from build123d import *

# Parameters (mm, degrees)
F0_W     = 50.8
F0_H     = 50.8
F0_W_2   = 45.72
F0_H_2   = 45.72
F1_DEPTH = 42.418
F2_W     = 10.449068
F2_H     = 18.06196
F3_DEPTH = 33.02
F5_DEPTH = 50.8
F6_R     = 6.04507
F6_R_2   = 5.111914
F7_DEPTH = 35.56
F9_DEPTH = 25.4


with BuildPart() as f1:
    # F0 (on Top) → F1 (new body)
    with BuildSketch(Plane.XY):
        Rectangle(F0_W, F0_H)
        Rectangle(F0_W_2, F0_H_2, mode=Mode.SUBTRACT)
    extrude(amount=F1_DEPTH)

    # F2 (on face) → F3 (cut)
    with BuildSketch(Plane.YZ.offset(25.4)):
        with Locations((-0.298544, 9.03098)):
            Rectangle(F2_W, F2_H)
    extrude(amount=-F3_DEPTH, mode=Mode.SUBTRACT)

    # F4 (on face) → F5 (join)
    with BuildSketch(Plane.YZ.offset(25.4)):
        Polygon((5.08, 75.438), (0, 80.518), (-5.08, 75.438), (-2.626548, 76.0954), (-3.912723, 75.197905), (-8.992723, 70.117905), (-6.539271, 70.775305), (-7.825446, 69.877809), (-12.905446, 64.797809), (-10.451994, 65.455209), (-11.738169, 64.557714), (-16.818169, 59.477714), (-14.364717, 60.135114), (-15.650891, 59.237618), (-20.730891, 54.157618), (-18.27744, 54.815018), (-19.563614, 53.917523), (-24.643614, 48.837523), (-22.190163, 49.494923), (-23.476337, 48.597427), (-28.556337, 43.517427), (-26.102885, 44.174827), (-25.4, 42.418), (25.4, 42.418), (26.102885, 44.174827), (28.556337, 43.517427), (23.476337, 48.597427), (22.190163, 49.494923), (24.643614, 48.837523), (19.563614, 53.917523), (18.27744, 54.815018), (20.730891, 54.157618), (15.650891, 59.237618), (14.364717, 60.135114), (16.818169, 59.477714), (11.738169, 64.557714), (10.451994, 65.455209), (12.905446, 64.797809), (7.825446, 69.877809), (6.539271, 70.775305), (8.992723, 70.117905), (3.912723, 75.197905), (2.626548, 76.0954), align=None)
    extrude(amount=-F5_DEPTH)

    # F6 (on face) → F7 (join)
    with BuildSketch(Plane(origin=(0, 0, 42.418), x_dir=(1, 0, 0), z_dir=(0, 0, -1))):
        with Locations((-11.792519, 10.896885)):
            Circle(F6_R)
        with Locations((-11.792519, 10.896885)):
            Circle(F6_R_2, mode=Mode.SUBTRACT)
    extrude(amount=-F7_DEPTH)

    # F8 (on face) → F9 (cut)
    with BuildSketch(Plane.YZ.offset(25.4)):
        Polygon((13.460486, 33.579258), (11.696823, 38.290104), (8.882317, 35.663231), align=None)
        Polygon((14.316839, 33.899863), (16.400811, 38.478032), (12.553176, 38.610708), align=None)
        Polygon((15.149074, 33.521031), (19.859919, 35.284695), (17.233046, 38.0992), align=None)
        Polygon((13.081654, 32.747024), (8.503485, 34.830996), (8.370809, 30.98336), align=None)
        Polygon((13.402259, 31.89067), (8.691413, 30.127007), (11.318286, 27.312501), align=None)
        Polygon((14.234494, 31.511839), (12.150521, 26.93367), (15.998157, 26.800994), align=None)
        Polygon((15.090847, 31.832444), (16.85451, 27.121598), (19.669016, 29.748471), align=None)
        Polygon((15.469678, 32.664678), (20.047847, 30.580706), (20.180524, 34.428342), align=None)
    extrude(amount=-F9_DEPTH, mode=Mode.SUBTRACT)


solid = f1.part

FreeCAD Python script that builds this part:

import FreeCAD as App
import Part
import Sketcher

V = App.Vector
Q = App.Units.Quantity

doc = App.newDocument("Part")
body = doc.addObject("PartDesign::Body", "Body")

# Sketch on XY plane
sketch1 = body.newObject("Sketcher::SketchObject", "Sketch")
sketch1.AttachmentSupport = (doc.getObject("XY_Plane"), [""])
sketch1.MapMode = "FlatFace"
sketch1.addGeometry(Part.LineSegment(V(-25, 25, 0), V(-25, -25, 0)), False)
sketch1.addGeometry(Part.LineSegment(V(-25, -25, 0), V(25, -25, 0)), False)
sketch1.addGeometry(Part.LineSegment(V(25, -25, 0), V(25, 25, 0)), False)
sketch1.addGeometry(Part.LineSegment(V(25, 25, 0), V(-25, 25, 0)), False)
sketch1.addGeometry(Part.LineSegment(V(23, -23, 0), V(-23, -23, 0)), False)
sketch1.addGeometry(Part.LineSegment(V(-23, -23, 0), V(-23, 23, 0)), False)
sketch1.addGeometry(Part.LineSegment(V(-23, 23, 0), V(23, 23, 0)), False)
sketch1.addGeometry(Part.LineSegment(V(23, 23, 0), V(23, -23, 0)), False)
sketch1.addConstraint(Sketcher.Constraint("Coincident", 0, 2, 1, 1))
sketch1.addConstraint(Sketcher.Constraint("Coincident", 1, 2, 2, 1))
sketch1.addConstraint(Sketcher.Constraint("Coincident", 2, 2, 3, 1))
sketch1.addConstraint(Sketcher.Constraint("Coincident", 3, 2, 0, 1))
sketch1.addConstraint(Sketcher.Constraint("Coincident", 4, 2, 5, 1))
sketch1.addConstraint(Sketcher.Constraint("Coincident", 5, 2, 6, 1))
sketch1.addConstraint(Sketcher.Constraint("Coincident", 6, 2, 7, 1))
sketch1.addConstraint(Sketcher.Constraint("Coincident", 7, 2, 4, 1))
sketch1.addConstraint(Sketcher.Constraint("Vertical", 0))
sketch1.addConstraint(Sketcher.Constraint("Horizontal", 1))
sketch1.addConstraint(Sketcher.Constraint("Vertical", 2))
sketch1.addConstraint(Sketcher.Constraint("Horizontal", 3))
sketch1.addConstraint(Sketcher.Constraint("Horizontal", 4))
sketch1.addConstraint(Sketcher.Constraint("Vertical", 5))
sketch1.addConstraint(Sketcher.Constraint("Horizontal", 6))
sketch1.addConstraint(Sketcher.Constraint("Vertical", 7))
sketch1.addConstraint(Sketcher.Constraint("Symmetric", 0, 2, 2, 2, -1, 1))
sketch1.addConstraint(Sketcher.Constraint("Symmetric", 4, 2, 6, 2, -1, 1))
sketch1.addConstraint(Sketcher.Constraint("Equal", 3, 0))
sketch1.addConstraint(Sketcher.Constraint("Equal", 6, 5))
sketch1.addConstraint(Sketcher.Constraint("DistanceX", 1, 1, 1, 2, Q("2 in")))
sketch1.addConstraint(Sketcher.Constraint("DistanceX", 4, 2, 4, 1, Q("1.8 in")))
pad1 = body.newObject("PartDesign::Pad", "Pad")
pad1.Profile = sketch1
pad1.Length = Q("1.67 in")

# Sketch on YZ plane
sketch2 = body.newObject("Sketcher::SketchObject", "Sketch001")
sketch2.AttachmentSupport = (doc.getObject("YZ_Plane"), [""])
sketch2.MapMode = "FlatFace"
sketch2.AttachmentOffset = App.Placement(V(0, 0, 1 * 25.4), App.Rotation())
sketch2.addGeometry(Part.LineSegment(V(-6, 18, 0), V(-6, 0, 0)), False)
sketch2.addGeometry(Part.LineSegment(V(-6, 0, 0), V(5, 0, 0)), False)
sketch2.addGeometry(Part.LineSegment(V(5, 0, 0), V(5, 18, 0)), False)
sketch2.addGeometry(Part.LineSegment(V(5, 18, 0), V(-6, 18, 0)), False)
sketch2.addConstraint(Sketcher.Constraint("Coincident", 0, 2, 1, 1))
sketch2.addConstraint(Sketcher.Constraint("Coincident", 1, 2, 2, 1))
sketch2.addConstraint(Sketcher.Constraint("Coincident", 2, 2, 3, 1))
sketch2.addConstraint(Sketcher.Constraint("Coincident", 3, 2, 0, 1))
sketch2.addConstraint(Sketcher.Constraint("Vertical", 0))
sketch2.addConstraint(Sketcher.Constraint("Horizontal", 1))
sketch2.addConstraint(Sketcher.Constraint("Vertical", 2))
sketch2.addConstraint(Sketcher.Constraint("Horizontal", 3))
sketch2.addConstraint(Sketcher.Constraint("PointOnObject", 0, 2, -1))
sketch2.addConstraint(Sketcher.Constraint("DistanceY", 0, 2, 0, 1, 18.06196))
sketch2.addConstraint(Sketcher.Constraint("DistanceX", 1, 1, 1, 2, 10.449068))
sketch2.addConstraint(Sketcher.Constraint("DistanceX", -1, 1, 1, 2, 4.92599))
pocket1 = body.newObject("PartDesign::Pocket", "Pocket")
pocket1.Profile = sketch2
pocket1.Length = Q("1.3 in")

# Sketch on YZ plane
sketch3 = body.newObject("Sketcher::SketchObject", "Sketch002")
sketch3.AttachmentSupport = (doc.getObject("YZ_Plane"), [""])
sketch3.MapMode = "FlatFace"
sketch3.AttachmentOffset = App.Placement(V(0, 0, 1 * 25.4), App.Rotation())
sketch3.addGeometry(Part.LineSegment(V(5.1, 75.4, 0), V(0, 80.5, 0)), False)
sketch3.addGeometry(Part.LineSegment(V(0, 80.5, 0), V(-5.1, 75.4, 0)), False)
sketch3.addGeometry(Part.LineSegment(V(-5.1, 75.4, 0), V(-2.6, 76.1, 0)), False)
sketch3.addGeometry(Part.LineSegment(V(-2.6, 76.1, 0), V(-3.9, 75.2, 0)), False)
sketch3.addGeometry(Part.LineSegment(V(-3.9, 75.2, 0), V(-9, 70.1, 0)), False)
sketch3.addGeometry(Part.LineSegment(V(-9, 70.1, 0), V(-6.5, 70.8, 0)), False)
sketch3.addGeometry(Part.LineSegment(V(-6.5, 70.8, 0), V(-7.8, 69.9, 0)), False)
sketch3.addGeometry(Part.LineSegment(V(-7.8, 69.9, 0), V(-12.9, 64.8, 0)), False)
sketch3.addGeometry(Part.LineSegment(V(-12.9, 64.8, 0), V(-10.5, 65.5, 0)), False)
sketch3.addGeometry(Part.LineSegment(V(-10.5, 65.5, 0), V(-11.7, 64.6, 0)), False)
sketch3.addGeometry(Part.LineSegment(V(-11.7, 64.6, 0), V(-16.8, 59.5, 0)), False)
sketch3.addGeometry(Part.LineSegment(V(-16.8, 59.5, 0), V(-14.4, 60.1, 0)), False)
sketch3.addGeometry(Part.LineSegment(V(-14.4, 60.1, 0), V(-15.7, 59.2, 0)), False)
sketch3.addGeometry(Part.LineSegment(V(-15.7, 59.2, 0), V(-20.7, 54.2, 0)), False)
sketch3.addGeometry(Part.LineSegment(V(-20.7, 54.2, 0), V(-18.3, 54.8, 0)), False)
sketch3.addGeometry(Part.LineSegment(V(-18.3, 54.8, 0), V(-19.6, 53.9, 0)), False)
sketch3.addGeometry(Part.LineSegment(V(-19.6, 53.9, 0), V(-24.6, 48.8, 0)), False)
sketch3.addGeometry(Part.LineSegment(V(-24.6, 48.8, 0), V(-22.2, 49.5, 0)), False)
sketch3.addGeometry(Part.LineSegment(V(-22.2, 49.5, 0), V(-23.5, 48.6, 0)), False)
sketch3.addGeometry(Part.LineSegment(V(-23.5, 48.6, 0), V(-28.6, 43.5, 0)), False)
sketch3.addGeometry(Part.LineSegment(V(-28.6, 43.5, 0), V(-26.1, 44.2, 0)), False)
sketch3.addGeometry(Part.LineSegment(V(-26.1, 44.2, 0), V(-25.4, 42.4, 0)), False)
sketch3.addGeometry(Part.LineSegment(V(-25.4, 42.4, 0), V(25.4, 42.4, 0)), False)
sketch3.addGeometry(Part.LineSegment(V(25.4, 42.4, 0), V(26.1, 44.2, 0)), False)
sketch3.addGeometry(Part.LineSegment(V(26.1, 44.2, 0), V(28.6, 43.5, 0)), False)
sketch3.addGeometry(Part.LineSegment(V(28.6, 43.5, 0), V(23.5, 48.6, 0)), False)
sketch3.addGeometry(Part.LineSegment(V(23.5, 48.6, 0), V(22.2, 49.5, 0)), False)
sketch3.addGeometry(Part.LineSegment(V(22.2, 49.5, 0), V(24.6, 48.8, 0)), False)
sketch3.addGeometry(Part.LineSegment(V(24.6, 48.8, 0), V(19.6, 53.9, 0)), False)
sketch3.addGeometry(Part.LineSegment(V(19.6, 53.9, 0), V(18.3, 54.8, 0)), False)
sketch3.addGeometry(Part.LineSegment(V(18.3, 54.8, 0), V(20.7, 54.2, 0)), False)
sketch3.addGeometry(Part.LineSegment(V(20.7, 54.2, 0), V(15.7, 59.2, 0)), False)
sketch3.addGeometry(Part.LineSegment(V(15.7, 59.2, 0), V(14.4, 60.1, 0)), False)
sketch3.addGeometry(Part.LineSegment(V(14.4, 60.1, 0), V(16.8, 59.5, 0)), False)
sketch3.addGeometry(Part.LineSegment(V(16.8, 59.5, 0), V(11.7, 64.6, 0)), False)
sketch3.addGeometry(Part.LineSegment(V(11.7, 64.6, 0), V(10.5, 65.5, 0)), False)
sketch3.addGeometry(Part.LineSegment(V(10.5, 65.5, 0), V(12.9, 64.8, 0)), False)
sketch3.addGeometry(Part.LineSegment(V(12.9, 64.8, 0), V(7.8, 69.9, 0)), False)
sketch3.addGeometry(Part.LineSegment(V(7.8, 69.9, 0), V(6.5, 70.8, 0)), False)
sketch3.addGeometry(Part.LineSegment(V(6.5, 70.8, 0), V(9, 70.1, 0)), False)
sketch3.addGeometry(Part.LineSegment(V(9, 70.1, 0), V(3.9, 75.2, 0)), False)
sketch3.addGeometry(Part.LineSegment(V(3.9, 75.2, 0), V(2.6, 76.1, 0)), False)
sketch3.addGeometry(Part.LineSegment(V(2.6, 76.1, 0), V(5.1, 75.4, 0)), False)
sketch3.addConstraint(Sketcher.Constraint("Coincident", 0, 2, 1, 1))
sketch3.addConstraint(Sketcher.Constraint("Coincident", 1, 2, 2, 1))
sketch3.addConstraint(Sketcher.Constraint("Coincident", 2, 2, 3, 1))
sketch3.addConstraint(Sketcher.Constraint("Coincident", 3, 2, 4, 1))
sketch3.addConstraint(Sketcher.Constraint("Coincident", 4, 2, 5, 1))
sketch3.addConstraint(Sketcher.Constraint("Coincident", 5, 2, 6, 1))
sketch3.addConstraint(Sketcher.Constraint("Coincident", 6, 2, 7, 1))
sketch3.addConstraint(Sketcher.Constraint("Coincident", 7, 2, 8, 1))
sketch3.addConstraint(Sketcher.Constraint("Coincident", 8, 2, 9, 1))
sketch3.addConstraint(Sketcher.Constraint("Coincident", 9, 2, 10, 1))
sketch3.addConstraint(Sketcher.Constraint("Coincident", 10, 2, 11, 1))
sketch3.addConstraint(Sketcher.Constraint("Coincident", 11, 2, 12, 1))
sketch3.addConstraint(Sketcher.Constraint("Coincident", 12, 2, 13, 1))
sketch3.addConstraint(Sketcher.Constraint("Coincident", 13, 2, 14, 1))
sketch3.addConstraint(Sketcher.Constraint("Coincident", 14, 2, 15, 1))
sketch3.addConstraint(Sketcher.Constraint("Coincident", 15, 2, 16, 1))
sketch3.addConstraint(Sketcher.Constraint("Coincident", 16, 2, 17, 1))
sketch3.addConstraint(Sketcher.Constraint("Coincident", 17, 2, 18, 1))
sketch3.addConstraint(Sketcher.Constraint("Coincident", 18, 2, 19, 1))
sketch3.addConstraint(Sketcher.Constraint("Coincident", 19, 2, 20, 1))
sketch3.addConstraint(Sketcher.Constraint("Coincident", 20, 2, 21, 1))
sketch3.addConstraint(Sketcher.Constraint("Coincident", 21, 2, 22, 1))
sketch3.addConstraint(Sketcher.Constraint("Coincident", 22, 2, 23, 1))
sketch3.addConstraint(Sketcher.Constraint("Coincident", 23, 2, 24, 1))
sketch3.addConstraint(Sketcher.Constraint("Coincident", 24, 2, 25, 1))
sketch3.addConstraint(Sketcher.Constraint("Coincident", 25, 2, 26, 1))
sketch3.addConstraint(Sketcher.Constraint("Coincident", 26, 2, 27, 1))
sketch3.addConstraint(Sketcher.Constraint("Coincident", 27, 2, 28, 1))
sketch3.addConstraint(Sketcher.Constraint("Coincident", 28, 2, 29, 1))
sketch3.addConstraint(Sketcher.Constraint("Coincident", 29, 2, 30, 1))
sketch3.addConstraint(Sketcher.Constraint("Coincident", 30, 2, 31, 1))
sketch3.addConstraint(Sketcher.Constraint("Coincident", 31, 2, 32, 1))
sketch3.addConstraint(Sketcher.Constraint("Coincident", 32, 2, 33, 1))
sketch3.addConstraint(Sketcher.Constraint("Coincident", 33, 2, 34, 1))
sketch3.addConstraint(Sketcher.Constraint("Coincident", 34, 2, 35, 1))
sketch3.addConstraint(Sketcher.Constraint("Coincident", 35, 2, 36, 1))
sketch3.addConstraint(Sketcher.Constraint("Coincident", 36, 2, 37, 1))
sketch3.addConstraint(Sketcher.Constraint("Coincident", 37, 2, 38, 1))
sketch3.addConstraint(Sketcher.Constraint("Coincident", 38, 2, 39, 1))
sketch3.addConstraint(Sketcher.Constraint("Coincident", 39, 2, 40, 1))
sketch3.addConstraint(Sketcher.Constraint("Coincident", 40, 2, 41, 1))
sketch3.addConstraint(Sketcher.Constraint("Coincident", 41, 2, 42, 1))
sketch3.addConstraint(Sketcher.Constraint("Coincident", 42, 2, 0, 1))
sketch3.addConstraint(Sketcher.Constraint("Horizontal", 22))
sketch3.addConstraint(Sketcher.Constraint("Symmetric", 20, 2, 23, 2, -2))
sketch3.addConstraint(Sketcher.Constraint("Symmetric", 19, 2, 24, 2, -2))
sketch3.addConstraint(Sketcher.Constraint("Symmetric", 18, 2, 25, 2, -2))
sketch3.addConstraint(Sketcher.Constraint("Symmetric", 17, 2, 26, 2, -2))
sketch3.addConstraint(Sketcher.Constraint("Symmetric", 16, 2, 27, 2, -2))
sketch3.addConstraint(Sketcher.Constraint("Symmetric", 15, 2, 28, 2, -2))
sketch3.addConstraint(Sketcher.Constraint("Symmetric", 14, 2, 29, 2, -2))
sketch3.addConstraint(Sketcher.Constraint("Symmetric", 13, 2, 30, 2, -2))
sketch3.addConstraint(Sketcher.Constraint("Symmetric", 12, 2, 31, 2, -2))
sketch3.addConstraint(Sketcher.Constraint("Symmetric", 11, 2, 32, 2, -2))
sketch3.addConstraint(Sketcher.Constraint("Symmetric", 10, 2, 33, 2, -2))
sketch3.addConstraint(Sketcher.Constraint("Symmetric", 9, 2, 34, 2, -2))
sketch3.addConstraint(Sketcher.Constraint("Symmetric", 8, 2, 35, 2, -2))
sketch3.addConstraint(Sketcher.Constraint("Symmetric", 7, 2, 36, 2, -2))
sketch3.addConstraint(Sketcher.Constraint("Symmetric", 6, 2, 37, 2, -2))
sketch3.addConstraint(Sketcher.Constraint("Symmetric", 5, 2, 38, 2, -2))
sketch3.addConstraint(Sketcher.Constraint("Symmetric", 4, 2, 39, 2, -2))
sketch3.addConstraint(Sketcher.Constraint("Symmetric", 3, 2, 40, 2, -2))
sketch3.addConstraint(Sketcher.Constraint("Symmetric", 2, 2, 41, 2, -2))
sketch3.addConstraint(Sketcher.Constraint("Symmetric", 1, 2, 42, 2, -2))
sketch3.addConstraint(Sketcher.Constraint("PointOnObject", 0, 2, -2))
sketch3.addConstraint(Sketcher.Constraint("Perpendicular", 0, 1))
sketch3.addConstraint(Sketcher.Constraint("Parallel", 1, 4))
sketch3.addConstraint(Sketcher.Constraint("Parallel", 2, 5))
sketch3.addConstraint(Sketcher.Constraint("Parallel", 3, 6))
sketch3.addConstraint(Sketcher.Constraint("Parallel", 4, 7))
sketch3.addConstraint(Sketcher.Constraint("Parallel", 5, 8))
sketch3.addConstraint(Sketcher.Constraint("Parallel", 6, 9))
sketch3.addConstraint(Sketcher.Constraint("Parallel", 7, 10))
sketch3.addConstraint(Sketcher.Constraint("Parallel", 8, 11))
sketch3.addConstraint(Sketcher.Constraint("Parallel", 9, 12))
sketch3.addConstraint(Sketcher.Constraint("Parallel", 10, 13))
sketch3.addConstraint(Sketcher.Constraint("Parallel", 11, 14))
sketch3.addConstraint(Sketcher.Constraint("Parallel", 12, 15))
sketch3.addConstraint(Sketcher.Constraint("Parallel", 13, 16))
sketch3.addConstraint(Sketcher.Constraint("Parallel", 14, 17))
sketch3.addConstraint(Sketcher.Constraint("Parallel", 15, 18))
sketch3.addConstraint(Sketcher.Constraint("Parallel", 16, 19))
sketch3.addConstraint(Sketcher.Constraint("Parallel", 17, 20))
sketch3.addConstraint(Sketcher.Constraint("Equal", 1, 4))
sketch3.addConstraint(Sketcher.Constraint("Equal", 2, 5))
sketch3.addConstraint(Sketcher.Constraint("Equal", 3, 6))
sketch3.addConstraint(Sketcher.Constraint("Equal", 4, 7))
sketch3.addConstraint(Sketcher.Constraint("Equal", 5, 8))
sketch3.addConstraint(Sketcher.Constraint("Equal", 6, 9))
sketch3.addConstraint(Sketcher.Constraint("Equal", 7, 10))
sketch3.addConstraint(Sketcher.Constraint("Equal", 8, 11))
sketch3.addConstraint(Sketcher.Constraint("Equal", 9, 12))
sketch3.addConstraint(Sketcher.Constraint("Equal", 10, 13))
sketch3.addConstraint(Sketcher.Constraint("Equal", 11, 14))
sketch3.addConstraint(Sketcher.Constraint("Equal", 12, 15))
sketch3.addConstraint(Sketcher.Constraint("Equal", 13, 16))
sketch3.addConstraint(Sketcher.Constraint("Equal", 14, 17))
sketch3.addConstraint(Sketcher.Constraint("Equal", 15, 18))
sketch3.addConstraint(Sketcher.Constraint("Equal", 16, 19))
sketch3.addConstraint(Sketcher.Constraint("Equal", 17, 20))
sketch3.addConstraint(Sketcher.Constraint("Equal", 21, 23))
sketch3.addConstraint(Sketcher.Constraint("DistanceX", 22, 1, 22, 2, Q("2 in")))
sketch3.addConstraint(Sketcher.Constraint("Angle", 2, Q("14.999989 deg")))
sketch3.addConstraint(Sketcher.Constraint("Distance", 2, Q("0.1 in")))
sketch3.addConstraint(Sketcher.Constraint("DistanceX", 1, 2, -1, 1, Q("0.2 in")))
sketch3.addConstraint(Sketcher.Constraint("DistanceY", -1, 1, 0, 2, Q("3.17 in")))
sketch3.addConstraint(Sketcher.Constraint("DistanceY", -1, 1, 21, 2, Q("1.67 in")))
sketch3.addConstraint(Sketcher.Constraint("DistanceX", 5, 2, -1, 1, 6.539271))
sketch3.addConstraint(Sketcher.Constraint("DistanceY", -1, 1, 6, 2, 69.877809))
pad2 = body.newObject("PartDesign::Pad", "Pad001")
pad2.Profile = sketch3
pad2.Length = Q("2 in")
pad2.Reversed = True

# Sketch on XY plane
sketch4 = body.newObject("Sketcher::SketchObject", "Sketch003")
sketch4.AttachmentSupport = (doc.getObject("XY_Plane"), [""])
sketch4.MapMode = "FlatFace"
sketch4.AttachmentOffset = App.Placement(V(0, 0, 1.67 * 25.4), App.Rotation())
sketch4.addGeometry(Part.Circle(V(-12, -11, 0), V(0, 0, 1), 6), False)
sketch4.addGeometry(Part.Circle(V(-12, -11, 0), V(0, 0, 1), 5), False)
sketch4.addConstraint(Sketcher.Constraint("Coincident", 1, 3, 0, 3))
sketch4.addConstraint(Sketcher.Constraint("Diameter", 0, 12.09014))
sketch4.addConstraint(Sketcher.Constraint("Diameter", 1, 10.223828))
sketch4.addConstraint(Sketcher.Constraint("DistanceX", 0, 3, -1, 1, 11.792519))
sketch4.addConstraint(Sketcher.Constraint("DistanceY", 0, 3, -1, 1, 10.896885))
pad3 = body.newObject("PartDesign::Pad", "Pad002")
pad3.Profile = sketch4
pad3.Length = Q("1.4 in")

# Sketch on YZ plane
sketch5 = body.newObject("Sketcher::SketchObject", "Sketch004")
sketch5.AttachmentSupport = (doc.getObject("YZ_Plane"), [""])
sketch5.MapMode = "FlatFace"
sketch5.AttachmentOffset = App.Placement(V(0, 0, 1 * 25.4), App.Rotation())
sketch5.addGeometry(Part.LineSegment(V(13.5, 33.6, 0), V(11.7, 38.3, 0)), False)
sketch5.addGeometry(Part.LineSegment(V(11.7, 38.3, 0), V(8.9, 35.7, 0)), False)
sketch5.addGeometry(Part.LineSegment(V(8.9, 35.7, 0), V(13.5, 33.6, 0)), False)
sketch5.addGeometry(Part.LineSegment(V(14.3, 33.9, 0), V(16.4, 38.5, 0)), False)
sketch5.addGeometry(Part.LineSegment(V(16.4, 38.5, 0), V(12.6, 38.6, 0)), False)
sketch5.addGeometry(Part.LineSegment(V(12.6, 38.6, 0), V(14.3, 33.9, 0)), False)
sketch5.addGeometry(Part.LineSegment(V(15.1, 33.5, 0), V(19.9, 35.3, 0)), False)
sketch5.addGeometry(Part.LineSegment(V(19.9, 35.3, 0), V(17.2, 38.1, 0)), False)
sketch5.addGeometry(Part.LineSegment(V(17.2, 38.1, 0), V(15.1, 33.5, 0)), False)
sketch5.addGeometry(Part.LineSegment(V(13.1, 32.7, 0), V(8.5, 34.8, 0)), False)
sketch5.addGeometry(Part.LineSegment(V(8.5, 34.8, 0), V(8.4, 31, 0)), False)
sketch5.addGeometry(Part.LineSegment(V(8.4, 31, 0), V(13.1, 32.7, 0)), False)
sketch5.addGeometry(Part.LineSegment(V(13.4, 31.9, 0), V(8.7, 30.1, 0)), False)
sketch5.addGeometry(Part.LineSegment(V(8.7, 30.1, 0), V(11.3, 27.3, 0)), False)
sketch5.addGeometry(Part.LineSegment(V(11.3, 27.3, 0), V(13.4, 31.9, 0)), False)
sketch5.addGeometry(Part.LineSegment(V(14.2, 31.5, 0), V(12.2, 26.9, 0)), False)
sketch5.addGeometry(Part.LineSegment(V(12.2, 26.9, 0), V(16, 26.8, 0)), False)
sketch5.addGeometry(Part.LineSegment(V(16, 26.8, 0), V(14.2, 31.5, 0)), False)
sketch5.addGeometry(Part.LineSegment(V(15.1, 31.8, 0), V(16.9, 27.1, 0)), False)
sketch5.addGeometry(Part.LineSegment(V(16.9, 27.1, 0), V(19.7, 29.7, 0)), False)
sketch5.addGeometry(Part.LineSegment(V(19.7, 29.7, 0), V(15.1, 31.8, 0)), False)
sketch5.addGeometry(Part.LineSegment(V(15.5, 32.7, 0), V(20, 30.6, 0)), False)
sketch5.addGeometry(Part.LineSegment(V(20, 30.6, 0), V(20.2, 34.4, 0)), False)
sketch5.addGeometry(Part.LineSegment(V(20.2, 34.4, 0), V(15.5, 32.7, 0)), False)
sketch5.addConstraint(Sketcher.Constraint("Coincident", 0, 2, 1, 1))
sketch5.addConstraint(Sketcher.Constraint("Coincident", 1, 2, 2, 1))
sketch5.addConstraint(Sketcher.Constraint("Coincident", 2, 2, 0, 1))
sketch5.addConstraint(Sketcher.Constraint("Coincident", 3, 2, 4, 1))
sketch5.addConstraint(Sketcher.Constraint("Coincident", 4, 2, 5, 1))
sketch5.addConstraint(Sketcher.Constraint("Coincident", 5, 2, 3, 1))
sketch5.addConstraint(Sketcher.Constraint("Coincident", 6, 2, 7, 1))
sketch5.addConstraint(Sketcher.Constraint("Coincident", 7, 2, 8, 1))
sketch5.addConstraint(Sketcher.Constraint("Coincident", 8, 2, 6, 1))
sketch5.addConstraint(Sketcher.Constraint("Coincident", 9, 2, 10, 1))
sketch5.addConstraint(Sketcher.Constraint("Coincident", 10, 2, 11, 1))
sketch5.addConstraint(Sketcher.Constraint("Coincident", 11, 2, 9, 1))
sketch5.addConstraint(Sketcher.Constraint("Coincident", 12, 2, 13, 1))
sketch5.addConstraint(Sketcher.Constraint("Coincident", 13, 2, 14, 1))
sketch5.addConstraint(Sketcher.Constraint("Coincident", 14, 2, 12, 1))
sketch5.addConstraint(Sketcher.Constraint("Coincident", 15, 2, 16, 1))
sketch5.addConstraint(Sketcher.Constraint("Coincident", 16, 2, 17, 1))
sketch5.addConstraint(Sketcher.Constraint("Coincident", 17, 2, 15, 1))
sketch5.addConstraint(Sketcher.Constraint("Coincident", 18, 2, 19, 1))
sketch5.addConstraint(Sketcher.Constraint("Coincident", 19, 2, 20, 1))
sketch5.addConstraint(Sketcher.Constraint("Coincident", 20, 2, 18, 1))
sketch5.addConstraint(Sketcher.Constraint("Coincident", 21, 2, 22, 1))
sketch5.addConstraint(Sketcher.Constraint("Coincident", 22, 2, 23, 1))
sketch5.addConstraint(Sketcher.Constraint("Coincident", 23, 2, 21, 1))
sketch5.addConstraint(Sketcher.Constraint("Perpendicular", 2, 3))
sketch5.addConstraint(Sketcher.Constraint("Parallel", 0, 5))
sketch5.addConstraint(Sketcher.Constraint("Perpendicular", 5, 6))
sketch5.addConstraint(Sketcher.Constraint("Perpendicular", 1, 7))
sketch5.addConstraint(Sketcher.Constraint("Parallel", 3, 8))
sketch5.addConstraint(Sketcher.Constraint("Perpendicular", 8, 9))
sketch5.addConstraint(Sketcher.Constraint("Perpendicular", 4, 10))
sketch5.addConstraint(Sketcher.Constraint("Parallel", 6, 11))
sketch5.addConstraint(Sketcher.Constraint("Parallel", 11, 12))
sketch5.addConstraint(Sketcher.Constraint("Parallel", 7, 13))
sketch5.addConstraint(Sketcher.Constraint("Perpendicular", 9, 14))
sketch5.addConstraint(Sketcher.Constraint("Parallel", 14, 15))
sketch5.addConstraint(Sketcher.Constraint("Perpendicular", 10, 16))
sketch5.addConstraint(Sketcher.Constraint("Perpendicular", 12, 17))
sketch5.addConstraint(Sketcher.Constraint("Parallel", 17, 18))
sketch5.addConstraint(Sketcher.Constraint("Perpendicular", 13, 19))
sketch5.addConstraint(Sketcher.Constraint("Perpendicular", 15, 20))
sketch5.addConstraint(Sketcher.Constraint("Parallel", 20, 21))
sketch5.addConstraint(Sketcher.Constraint("Perpendicular", 16, 22))
sketch5.addConstraint(Sketcher.Constraint("Perpendicular", 18, 23))
sketch5.addConstraint(Sketcher.Constraint("Equal", 0, 2))
sketch5.addConstraint(Sketcher.Constraint("Equal", 2, 3))
sketch5.addConstraint(Sketcher.Constraint("Equal", 1, 4))
sketch5.addConstraint(Sketcher.Constraint("Equal", 3, 5))
sketch5.addConstraint(Sketcher.Constraint("Equal", 5, 6))
sketch5.addConstraint(Sketcher.Constraint("Equal", 8, 9))
sketch5.addConstraint(Sketcher.Constraint("Equal", 11, 12))
sketch5.addConstraint(Sketcher.Constraint("Equal", 14, 15))
sketch5.addConstraint(Sketcher.Constraint("Equal", 17, 18))
sketch5.addConstraint(Sketcher.Constraint("Equal", 20, 21))
sketch5.addConstraint(Sketcher.Constraint("DistanceY", -1, 1, 7, 2, 38.0992))
sketch5.addConstraint(Sketcher.Constraint("DistanceY", -1, 1, 13, 2, 27.312501))
sketch5.addConstraint(Sketcher.Constraint("DistanceY", 1, 2, 3, 2, 2.814801))
sketch5.addConstraint(Sketcher.Constraint("DistanceY", 8, 2, 3, 2, 4.957001))
sketch5.addConstraint(Sketcher.Constraint("DistanceX", 9, 2, 2, 2, 4.957001))
sketch5.addConstraint(Sketcher.Constraint("DistanceY", 10, 2, 2, 2, 2.595898))
sketch5.addConstraint(Sketcher.Constraint("DistanceX", 13, 2, 2, 2, 2.1422))
sketch5.addConstraint(Sketcher.Constraint("DistanceY", 15, 2, 14, 2, 4.957))
sketch5.addConstraint(Sketcher.Constraint("DistanceX", 14, 2, 16, 2, 2.595898))
sketch5.addConstraint(Sketcher.Constraint("DistanceX", 20, 2, 21, 2, 4.957))
sketch5.addConstraint(Sketcher.Constraint("Distance", 4, 3.849922))
sketch5.addConstraint(Sketcher.Constraint("DistanceY", -1, 1, 1, 2, 35.663231))
sketch5.addConstraint(Sketcher.Constraint("DistanceX", -1, 1, 3, 2, 16.400811))
sketch5.addConstraint(Sketcher.Constraint("DistanceX", -1, 1, 6, 2, 19.859919))
sketch5.addConstraint(Sketcher.Constraint("DistanceX", -1, 1, 10, 2, 8.370809))
sketch5.addConstraint(Sketcher.Constraint("DistanceX", -1, 1, 18, 2, 16.85451))
sketch5.addConstraint(Sketcher.Constraint("DistanceY", -1, 1, 19, 2, 29.748471))
sketch5.addConstraint(Sketcher.Constraint("DistanceY", -1, 1, 23, 2, 32.664678))
pocket2 = body.newObject("PartDesign::Pocket", "Pocket001")
pocket2.Profile = sketch5
pocket2.Length = Q("1 in")

doc.recompute()
